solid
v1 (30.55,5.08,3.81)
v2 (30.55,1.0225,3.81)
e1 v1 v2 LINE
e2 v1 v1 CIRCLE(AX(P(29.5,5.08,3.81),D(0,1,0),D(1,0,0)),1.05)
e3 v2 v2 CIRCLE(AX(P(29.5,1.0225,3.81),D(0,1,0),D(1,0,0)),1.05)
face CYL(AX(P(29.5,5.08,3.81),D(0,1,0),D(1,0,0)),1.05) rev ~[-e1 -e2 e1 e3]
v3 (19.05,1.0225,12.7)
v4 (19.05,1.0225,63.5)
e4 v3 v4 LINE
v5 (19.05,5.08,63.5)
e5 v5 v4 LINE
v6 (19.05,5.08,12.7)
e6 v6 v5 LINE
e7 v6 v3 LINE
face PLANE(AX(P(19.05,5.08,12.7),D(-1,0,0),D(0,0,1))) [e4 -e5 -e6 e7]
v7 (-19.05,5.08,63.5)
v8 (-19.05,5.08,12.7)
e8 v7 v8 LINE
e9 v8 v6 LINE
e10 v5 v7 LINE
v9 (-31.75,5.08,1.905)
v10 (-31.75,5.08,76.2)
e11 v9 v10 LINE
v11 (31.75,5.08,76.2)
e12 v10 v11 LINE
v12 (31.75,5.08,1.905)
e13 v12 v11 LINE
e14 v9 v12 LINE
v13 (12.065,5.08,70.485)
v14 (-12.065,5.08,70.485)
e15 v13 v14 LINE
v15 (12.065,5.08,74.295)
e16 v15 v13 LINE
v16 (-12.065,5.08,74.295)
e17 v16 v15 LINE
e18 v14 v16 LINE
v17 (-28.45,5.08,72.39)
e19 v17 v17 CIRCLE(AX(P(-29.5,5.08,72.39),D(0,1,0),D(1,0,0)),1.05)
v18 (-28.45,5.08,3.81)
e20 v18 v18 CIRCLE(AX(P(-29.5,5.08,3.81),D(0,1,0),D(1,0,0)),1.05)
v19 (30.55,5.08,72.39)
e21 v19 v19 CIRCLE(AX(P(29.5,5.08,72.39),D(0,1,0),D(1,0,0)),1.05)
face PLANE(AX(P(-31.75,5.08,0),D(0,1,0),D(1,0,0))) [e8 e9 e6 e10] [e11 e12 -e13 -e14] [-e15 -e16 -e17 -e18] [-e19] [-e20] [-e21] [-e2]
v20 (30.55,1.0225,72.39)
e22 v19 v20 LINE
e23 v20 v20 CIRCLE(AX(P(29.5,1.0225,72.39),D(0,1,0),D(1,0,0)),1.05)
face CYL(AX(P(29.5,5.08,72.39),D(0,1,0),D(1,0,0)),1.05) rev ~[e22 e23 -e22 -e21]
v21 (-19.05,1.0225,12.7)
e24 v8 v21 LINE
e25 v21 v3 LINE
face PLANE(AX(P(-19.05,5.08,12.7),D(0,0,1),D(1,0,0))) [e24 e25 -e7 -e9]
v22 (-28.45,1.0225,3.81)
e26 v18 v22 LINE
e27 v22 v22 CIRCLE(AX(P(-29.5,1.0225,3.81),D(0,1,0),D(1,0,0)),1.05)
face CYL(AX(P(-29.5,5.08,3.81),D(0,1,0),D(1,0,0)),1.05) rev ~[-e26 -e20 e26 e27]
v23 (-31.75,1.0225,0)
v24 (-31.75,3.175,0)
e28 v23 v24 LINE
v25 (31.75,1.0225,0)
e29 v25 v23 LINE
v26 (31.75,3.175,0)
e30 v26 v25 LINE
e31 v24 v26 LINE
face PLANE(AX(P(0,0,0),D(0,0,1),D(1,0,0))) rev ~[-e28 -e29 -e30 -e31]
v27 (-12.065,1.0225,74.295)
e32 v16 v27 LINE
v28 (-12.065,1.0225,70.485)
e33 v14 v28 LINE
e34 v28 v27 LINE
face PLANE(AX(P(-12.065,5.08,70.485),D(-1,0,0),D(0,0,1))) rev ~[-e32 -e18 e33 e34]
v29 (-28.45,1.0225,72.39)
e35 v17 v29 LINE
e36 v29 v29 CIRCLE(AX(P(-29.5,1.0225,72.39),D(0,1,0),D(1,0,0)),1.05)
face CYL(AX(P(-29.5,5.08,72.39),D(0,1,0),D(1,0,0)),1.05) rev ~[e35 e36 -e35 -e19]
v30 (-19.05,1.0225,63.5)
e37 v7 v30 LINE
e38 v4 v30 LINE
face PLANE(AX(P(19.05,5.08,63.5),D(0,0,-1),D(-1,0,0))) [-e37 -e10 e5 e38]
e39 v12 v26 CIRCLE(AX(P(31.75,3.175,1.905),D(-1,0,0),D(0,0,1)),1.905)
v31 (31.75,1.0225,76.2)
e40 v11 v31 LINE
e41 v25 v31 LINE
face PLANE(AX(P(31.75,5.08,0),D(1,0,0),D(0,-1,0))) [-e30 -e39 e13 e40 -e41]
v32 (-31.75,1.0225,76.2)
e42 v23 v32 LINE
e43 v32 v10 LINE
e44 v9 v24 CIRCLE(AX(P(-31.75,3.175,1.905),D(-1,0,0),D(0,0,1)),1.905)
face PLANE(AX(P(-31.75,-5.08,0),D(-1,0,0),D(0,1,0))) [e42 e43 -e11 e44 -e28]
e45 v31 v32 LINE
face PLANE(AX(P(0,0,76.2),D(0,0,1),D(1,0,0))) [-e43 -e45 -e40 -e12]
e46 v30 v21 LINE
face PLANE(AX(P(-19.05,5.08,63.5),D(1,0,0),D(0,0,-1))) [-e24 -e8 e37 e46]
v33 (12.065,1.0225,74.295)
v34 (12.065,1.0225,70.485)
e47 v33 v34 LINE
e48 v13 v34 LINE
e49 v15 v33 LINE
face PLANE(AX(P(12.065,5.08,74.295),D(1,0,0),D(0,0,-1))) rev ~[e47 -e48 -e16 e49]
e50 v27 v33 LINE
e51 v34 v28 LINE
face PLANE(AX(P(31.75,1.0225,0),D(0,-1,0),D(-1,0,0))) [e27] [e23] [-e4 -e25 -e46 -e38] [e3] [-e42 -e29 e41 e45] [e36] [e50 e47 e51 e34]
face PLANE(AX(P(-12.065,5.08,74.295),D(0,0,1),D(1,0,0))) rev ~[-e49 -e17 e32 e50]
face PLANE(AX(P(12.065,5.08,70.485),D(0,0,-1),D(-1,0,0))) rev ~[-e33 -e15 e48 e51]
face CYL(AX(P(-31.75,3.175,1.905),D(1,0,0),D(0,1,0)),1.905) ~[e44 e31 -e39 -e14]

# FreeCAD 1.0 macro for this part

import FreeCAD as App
import Part
import Sketcher

V = App.Vector
Q = App.Units.Quantity


def edges_at(feature, points):
    """Names of the edges that pass closest to the given points."""
    edges = feature.Shape.Edges
    near = lambda p: min(range(len(edges)), key=lambda i: edges[i].distToShape(Part.Vertex(*p))[0])
    return sorted({f"Edge{near(p) + 1}" for p in points})

doc = App.newDocument("Part")
body = doc.addObject("PartDesign::Body", "Body")

sketch1 = body.newObject("Sketcher::SketchObject", "Sketch")
sketch1.AttachmentSupport = (doc.getObject("XY_Plane"), [""])
sketch1.MapMode = "FlatFace"
sketch1.addGeometry([
    Part.LineSegment(V(31.75, 5.08, 0), V(-31.75, 5.08, 0)),
    Part.LineSegment(V(-31.75, 5.08, 0), V(-31.75, -5.08, 0)),
    Part.LineSegment(V(-31.75, -5.08, 0), V(31.75, -5.08, 0)),
    Part.LineSegment(V(31.75, -5.08, 0), V(31.75, 5.08, 0)),
], False)
sketch1.addConstraint([
    Sketcher.Constraint("Coincident", 0, 2, 1, 1),
    Sketcher.Constraint("Coincident", 1, 2, 2, 1),
    Sketcher.Constraint("Coincident", 2, 2, 3, 1),
    Sketcher.Constraint("Coincident", 3, 2, 0, 1),
    Sketcher.Constraint("Horizontal", 0),
    Sketcher.Constraint("Vertical", 1),
    Sketcher.Constraint("Horizontal", 2),
    Sketcher.Constraint("Vertical", 3),
    Sketcher.Constraint("Symmetric", 0, 2, 2, 2, -1, 1),
    Sketcher.Constraint("DistanceX", 0, 2, 0, 1, Q("2.5 in")),
    Sketcher.Constraint("DistanceY", 1, 2, 1, 1, Q("0.4 in")),
])
pad1 = body.newObject("PartDesign::Pad", "Pad")
pad1.Profile = sketch1
pad1.Length = Q("3 in")

sketch2 = body.newObject("Sketcher::SketchObject", "Sketch001")
sketch2.AttachmentSupport = (doc.getObject("XY_Plane"), [""])
sketch2.MapMode = "FlatFace"
sketch2.AttachmentOffset = App.Placement(V(0, 0, 3 * 25.4), App.Rotation())
sketch2.addGeometry([
    Part.LineSegment(V(27.25, 0.3875, 0), V(-27.25, 0.3875, 0)),
    Part.LineSegment(V(-27.25, 0.3875, 0), V(-27.25, -0.3745, 0)),
    Part.LineSegment(V(-27.25, -0.3745, 0), V(27.25, -0.3745, 0)),
    Part.LineSegment(V(27.25, -0.3745, 0), V(27.25, 0.3875, 0)),
], False)
sketch2.addConstraint([
    Sketcher.Constraint("Coincident", 0, 2, 1, 1),
    Sketcher.Constraint("Coincident", 1, 2, 2, 1),
    Sketcher.Constraint("Coincident", 2, 2, 3, 1),
    Sketcher.Constraint("Coincident", 3, 2, 0, 1),
    Sketcher.Constraint("Horizontal", 0),
    Sketcher.Constraint("Vertical", 1),
    Sketcher.Constraint("Horizontal", 2),
    Sketcher.Constraint("Vertical", 3),
    Sketcher.Constraint("DistanceY", 1, 2, 1, 1, Q("0.03 in")),
    Sketcher.Constraint("DistanceX", 0, 2, 0, 1, Q("54.5 mm")),
    Sketcher.Constraint("DistanceX", 0, 2, -1, 1, Q("27.25 mm")),
    Sketcher.Constraint("DistanceY", -1, 1, 0, 2, Q("0.3875 mm")),
])
pocket1 = body.newObject("PartDesign::Pocket", "Pocket")
pocket1.Profile = sketch2
pocket1.Length = Q("3.3503937 in")

sketch3 = body.newObject("Sketcher::SketchObject", "Sketch002")
sketch3.AttachmentSupport = (doc.getObject("XY_Plane"), [""])
sketch3.MapMode = "FlatFace"
sketch3.AttachmentOffset = App.Placement(V(0, 0, 3 * 25.4), App.Rotation())
sketch3.addGeometry([
    Part.LineSegment(V(31.75, 0.3875, 0), V(-31.75, 0.3875, 0)),
    Part.LineSegment(V(-31.75, 0.3875, 0), V(-31.75, -5.08, 0)),
    Part.LineSegment(V(-31.75, -5.08, 0), V(31.75, -5.08, 0)),
    Part.LineSegment(V(31.75, -5.08, 0), V(31.75, 0.3875, 0)),
], False)
sketch3.addConstraint([
    Sketcher.Constraint("Coincident", 0, 2, 1, 1),
    Sketcher.Constraint("Coincident", 1, 2, 2, 1),
    Sketcher.Constraint("Coincident", 2, 2, 3, 1),
    Sketcher.Constraint("Coincident", 3, 2, 0, 1),
    Sketcher.Constraint("Horizontal", 0),
    Sketcher.Constraint("Vertical", 1),
    Sketcher.Constraint("Horizontal", 2),
    Sketcher.Constraint("Vertical", 3),
    Sketcher.Constraint("DistanceX", 0, 2, 0, 1, Q("2.5 in")),
    Sketcher.Constraint("DistanceY", 1, 2, -1, 1, Q("0.2 in")),
    Sketcher.Constraint("DistanceX", 0, 2, -1, 1, Q("1.25 in")),
    Sketcher.Constraint("DistanceY", 1, 2, 1, 1, Q("5.4675 mm")),
])
pocket2 = body.newObject("PartDesign::Pocket", "Pocket001")
pocket2.Profile = sketch3
pocket2.Length = Q("3 in")

sketch4 = body.newObject("Sketcher::SketchObject", "Sketch003")
sketch4.AttachmentSupport = (doc.getObject("XZ_Plane"), [""])
sketch4.MapMode = "FlatFace"
sketch4.AttachmentOffset = App.Placement(V(0, 0, -0.2 * 25.4), App.Rotation())
sketch4.addGeometry([
    Part.LineSegment(V(19.05, 12.7, 0), V(-19.05, 12.7, 0)),
    Part.LineSegment(V(-19.05, 12.7, 0), V(-19.05, 63.5, 0)),
    Part.LineSegment(V(-19.05, 63.5, 0), V(19.05, 63.5, 0)),
    Part.LineSegment(V(19.05, 63.5, 0), V(19.05, 12.7, 0)),
], False)
sketch4.addConstraint([
    Sketcher.Constraint("Coincident", 0, 2, 1, 1),
    Sketcher.Constraint("Coincident", 1, 2, 2, 1),
    Sketcher.Constraint("Coincident", 2, 2, 3, 1),
    Sketcher.Constraint("Coincident", 3, 2, 0, 1),
    Sketcher.Constraint("Horizontal", 0),
    Sketcher.Constraint("Vertical", 1),
    Sketcher.Constraint("Horizontal", 2),
    Sketcher.Constraint("Vertical", 3),
    Sketcher.Constraint("DistanceY", -1, 1, 0, 2, Q("0.5 in")),
    Sketcher.Constraint("DistanceY", 1, 1, 1, 2, Q("2 in")),
    Sketcher.Constraint("DistanceX", 0, 2, 0, 1, Q("1.5 in")),
    Sketcher.Constraint("DistanceX", 0, 2, -1, 1, Q("0.75 in")),
])
pocket3 = body.newObject("PartDesign::Pocket", "Pocket002")
pocket3.Profile = sketch4
pocket3.Length = Q("1 in")
pocket3.Reversed = True

sketch5 = body.newObject("Sketcher::SketchObject", "Sketch004")
sketch5.AttachmentSupport = (doc.getObject("XZ_Plane"), [""])
sketch5.MapMode = "FlatFace"
sketch5.AttachmentOffset = App.Placement(V(0, 0, -0.2 * 25.4), App.Rotation())
sketch5.addGeometry([
    Part.Circle(V(29.5, 72.39, 0), V(0, 0, 1), 1.05),
    Part.Circle(V(-29.5, 72.39, 0), V(0, 0, 1), 1.05),
    Part.Circle(V(-29.5, 3.81, 0), V(0, 0, 1), 1.05),
    Part.Circle(V(29.5, 3.81, 0), V(0, 0, 1), 1.05),
], False)
sketch5.addConstraint([
    Sketcher.Constraint("Equal", 0, 1),
    Sketcher.Constraint("Equal", 1, 2),
    Sketcher.Constraint("Equal", 2, 3),
    Sketcher.Constraint("Symmetric", 0, 3, 1, 3, -2),
    Sketcher.Constraint("Symmetric", 2, 3, 3, 3, -2),
    Sketcher.Constraint("Vertical", 1, 3, 2, 3),
    Sketcher.Constraint("Diameter", 0, Q("2.1 mm")),
    Sketcher.Constraint("DistanceY", -1, 1, 2, 3, Q("0.15 in")),
    Sketcher.Constraint("DistanceY", 2, 3, 1, 3, Q("2.7 in")),
    Sketcher.Constraint("DistanceX", -1, 1, 0, 3, Q("29.5 mm")),
])
pocket4 = body.newObject("PartDesign::Pocket", "Pocket003")
pocket4.Profile = sketch5
pocket4.Length = Q("1 in")
pocket4.Reversed = True
doc.recompute()

fillet = body.newObject("PartDesign::Fillet", "Fillet")
fillet.Base = (pocket4, edges_at(pocket4, [(0, 5.08, 0)]))
fillet.Radius = Q("0.075 in")

sketch6 = body.newObject("Sketcher::SketchObject", "Sketch005")
sketch6.AttachmentSupport = (doc.getObject("XZ_Plane"), [""])
sketch6.MapMode = "FlatFace"
sketch6.AttachmentOffset = App.Placement(V(0, 0, -0.2 * 25.4), App.Rotation())
sketch6.addGeometry([
    Part.LineSegment(V(-12.065, 70.485, 0), V(-12.065, 74.295, 0)),
    Part.LineSegment(V(-12.065, 74.295, 0), V(12.065, 74.295, 0)),
    Part.LineSegment(V(12.065, 74.295, 0), V(12.065, 70.485, 0)),
    Part.LineSegment(V(12.065, 70.485, 0), V(-12.065, 70.485, 0)),
], False)
sketch6.addConstraint([
    Sketcher.Constraint("Coincident", 0, 2, 1, 1),
    Sketcher.Constraint("Coincident", 1, 2, 2, 1),
    Sketcher.Constraint("Coincident", 2, 2, 3, 1),
    Sketcher.Constraint("Coincident", 3, 2, 0, 1),
    Sketcher.Constraint("Vertical", 0),
    Sketcher.Constraint("Horizontal", 1),
    Sketcher.Constraint("Vertical", 2),
    Sketcher.Constraint("Horizontal", 3),
    Sketcher.Constraint("DistanceX", 1, 1, 1, 2, Q("0.95 in")),
    Sketcher.Constraint("DistanceY", 0, 1, 0, 2, Q("0.15 in")),
    Sketcher.Constraint("DistanceX", 0, 2, -1, 1, Q("0.475 in")),
    Sketcher.Constraint("DistanceY", -1, 1, 0, 2, Q("2.925 in")),
])
pocket5 = body.newObject("PartDesign::Pocket", "Pocket004")
pocket5.Profile = sketch6
pocket5.Length = Q("1 in")
pocket5.Reversed = True

sketch7 = body.newObject("Sketcher::SketchObject", "Sketch006")
sketch7.AttachmentSupport = (doc.getObject("XY_Plane"), [""])
sketch7.MapMode = "FlatFace"
sketch7.addGeometry([
    Part.LineSegment(V(31.75, 0.3875, 0), V(-31.75, 0.3875, 0)),
    Part.LineSegment(V(-31.75, 0.3875, 0), V(-31.75, 1.0225, 0)),
    Part.LineSegment(V(-31.75, 1.0225, 0), V(31.75, 1.0225, 0)),
    Part.LineSegment(V(31.75, 1.0225, 0), V(31.75, 0.3875, 0)),
], False)
sketch7.addConstraint([
    Sketcher.Constraint("Coincident", 0, 2, 1, 1),
    Sketcher.Constraint("Coincident", 1, 2, 2, 1),
    Sketcher.Constraint("Coincident", 2, 2, 3, 1),
    Sketcher.Constraint("Coincident", 3, 2, 0, 1),
    Sketcher.Constraint("Horizontal", 0),
    Sketcher.Constraint("Vertical", 1),
    Sketcher.Constraint("Horizontal", 2),
    Sketcher.Constraint("Vertical", 3),
    Sketcher.Constraint("DistanceY", 1, 1, 1, 2, Q("0.025 in")),
    Sketcher.Constraint("DistanceX", 0, 2, 0, 1, Q("2.5 in")),
    Sketcher.Constraint("DistanceX", 0, 2, -1, 1, Q("1.25 in")),
    Sketcher.Constraint("DistanceY", -1, 1, 0, 2, Q("0.3875 mm")),
])
pocket6 = body.newObject("PartDesign::Pocket", "Pocket005")
pocket6.Profile = sketch7
pocket6.Length = Q("3 in")
pocket6.Reversed = True

doc.recompute()
